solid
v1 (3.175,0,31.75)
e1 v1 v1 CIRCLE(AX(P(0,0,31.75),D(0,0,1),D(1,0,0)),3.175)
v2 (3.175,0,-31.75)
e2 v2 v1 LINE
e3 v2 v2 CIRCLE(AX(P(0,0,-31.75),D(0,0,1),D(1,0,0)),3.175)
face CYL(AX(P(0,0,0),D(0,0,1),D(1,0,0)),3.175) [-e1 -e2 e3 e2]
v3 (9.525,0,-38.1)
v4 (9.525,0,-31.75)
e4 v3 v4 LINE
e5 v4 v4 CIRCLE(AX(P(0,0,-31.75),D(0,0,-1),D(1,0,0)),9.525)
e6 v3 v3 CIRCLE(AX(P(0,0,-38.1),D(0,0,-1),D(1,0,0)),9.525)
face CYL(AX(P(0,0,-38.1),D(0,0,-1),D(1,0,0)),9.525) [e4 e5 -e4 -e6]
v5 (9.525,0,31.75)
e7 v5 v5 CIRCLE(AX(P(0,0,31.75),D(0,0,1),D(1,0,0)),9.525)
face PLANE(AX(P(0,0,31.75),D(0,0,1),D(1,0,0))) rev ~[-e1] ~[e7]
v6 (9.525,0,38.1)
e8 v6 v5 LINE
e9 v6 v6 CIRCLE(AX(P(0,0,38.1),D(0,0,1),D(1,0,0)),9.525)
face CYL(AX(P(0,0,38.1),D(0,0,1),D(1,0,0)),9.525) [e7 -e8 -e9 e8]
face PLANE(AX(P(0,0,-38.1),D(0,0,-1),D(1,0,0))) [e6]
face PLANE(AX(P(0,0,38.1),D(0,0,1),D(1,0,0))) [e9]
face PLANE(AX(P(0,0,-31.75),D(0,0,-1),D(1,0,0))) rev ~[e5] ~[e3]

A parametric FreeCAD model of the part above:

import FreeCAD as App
import Part
import Sketcher
from FreeCAD import Vector
Q = App.Units.Quantity

doc = App.newDocument("Part")
body = doc.addObject("PartDesign::Body", "Body")

sketch1 = doc.addObject("Sketcher::SketchObject", "Sketch")
body.addObject(sketch1)
sketch1.AttachmentSupport = (doc.XY_Plane, [""])
sketch1.MapMode = "FlatFace"
sketch1.addGeometry(Part.Circle(Vector(0, 0, 0), Vector(0, 0, 1), 3.2), False)
sketch1.addConstraint(Sketcher.Constraint("Coincident", 0, 3, -1, 1))
sketch1.addConstraint(Sketcher.Constraint("Diameter", 0, Q("0.25 in")))
pad1 = doc.addObject("PartDesign::Pad", "Pad")
body.addObject(pad1)
pad1.Profile = sketch1
pad1.Length = Q("3 in")
pad1.Midplane = True

sketch2 = doc.addObject("Sketcher::SketchObject", "Sketch001")
body.addObject(sketch2)
sketch2.AttachmentSupport = (doc.XY_Plane, [""])
sketch2.MapMode = "FlatFace"
sketch2.AttachmentOffset = App.Placement(Vector(0, 0, -1.5 * 25.4), App.Rotation())
sketch2.addGeometry(Part.Circle(Vector(0, 0, 0), Vector(0, 0, 1), 10), False)
sketch2.addConstraint(Sketcher.Constraint("Coincident", 0, 3, -1, 1))
sketch2.addConstraint(Sketcher.Constraint("Diameter", 0, Q("0.75 in")))
pad2 = doc.addObject("PartDesign::Pad", "Pad001")
body.addObject(pad2)
pad2.Profile = sketch2
pad2.Length = Q("0.25 in")

sketch3 = doc.addObject("Sketcher::SketchObject", "Sketch002")
body.addObject(sketch3)
sketch3.AttachmentSupport = (doc.XY_Plane, [""])
sketch3.MapMode = "FlatFace"
sketch3.AttachmentOffset = App.Placement(Vector(0, 0, 1.5 * 25.4), App.Rotation())
sketch3.addGeometry(Part.Circle(Vector(0, 0, 0), Vector(0, 0, 1), 10), False)
sketch3.addConstraint(Sketcher.Constraint("Coincident", 0, 3, -1, 1))
sketch3.addConstraint(Sketcher.Constraint("Diameter", 0, Q("0.75 in")))
pad3 = doc.addObject("PartDesign::Pad", "Pad002")
body.addObject(pad3)
pad3.Profile = sketch3
pad3.Length = Q("0.25 in")
pad3.Reversed = True

doc.recompute()
